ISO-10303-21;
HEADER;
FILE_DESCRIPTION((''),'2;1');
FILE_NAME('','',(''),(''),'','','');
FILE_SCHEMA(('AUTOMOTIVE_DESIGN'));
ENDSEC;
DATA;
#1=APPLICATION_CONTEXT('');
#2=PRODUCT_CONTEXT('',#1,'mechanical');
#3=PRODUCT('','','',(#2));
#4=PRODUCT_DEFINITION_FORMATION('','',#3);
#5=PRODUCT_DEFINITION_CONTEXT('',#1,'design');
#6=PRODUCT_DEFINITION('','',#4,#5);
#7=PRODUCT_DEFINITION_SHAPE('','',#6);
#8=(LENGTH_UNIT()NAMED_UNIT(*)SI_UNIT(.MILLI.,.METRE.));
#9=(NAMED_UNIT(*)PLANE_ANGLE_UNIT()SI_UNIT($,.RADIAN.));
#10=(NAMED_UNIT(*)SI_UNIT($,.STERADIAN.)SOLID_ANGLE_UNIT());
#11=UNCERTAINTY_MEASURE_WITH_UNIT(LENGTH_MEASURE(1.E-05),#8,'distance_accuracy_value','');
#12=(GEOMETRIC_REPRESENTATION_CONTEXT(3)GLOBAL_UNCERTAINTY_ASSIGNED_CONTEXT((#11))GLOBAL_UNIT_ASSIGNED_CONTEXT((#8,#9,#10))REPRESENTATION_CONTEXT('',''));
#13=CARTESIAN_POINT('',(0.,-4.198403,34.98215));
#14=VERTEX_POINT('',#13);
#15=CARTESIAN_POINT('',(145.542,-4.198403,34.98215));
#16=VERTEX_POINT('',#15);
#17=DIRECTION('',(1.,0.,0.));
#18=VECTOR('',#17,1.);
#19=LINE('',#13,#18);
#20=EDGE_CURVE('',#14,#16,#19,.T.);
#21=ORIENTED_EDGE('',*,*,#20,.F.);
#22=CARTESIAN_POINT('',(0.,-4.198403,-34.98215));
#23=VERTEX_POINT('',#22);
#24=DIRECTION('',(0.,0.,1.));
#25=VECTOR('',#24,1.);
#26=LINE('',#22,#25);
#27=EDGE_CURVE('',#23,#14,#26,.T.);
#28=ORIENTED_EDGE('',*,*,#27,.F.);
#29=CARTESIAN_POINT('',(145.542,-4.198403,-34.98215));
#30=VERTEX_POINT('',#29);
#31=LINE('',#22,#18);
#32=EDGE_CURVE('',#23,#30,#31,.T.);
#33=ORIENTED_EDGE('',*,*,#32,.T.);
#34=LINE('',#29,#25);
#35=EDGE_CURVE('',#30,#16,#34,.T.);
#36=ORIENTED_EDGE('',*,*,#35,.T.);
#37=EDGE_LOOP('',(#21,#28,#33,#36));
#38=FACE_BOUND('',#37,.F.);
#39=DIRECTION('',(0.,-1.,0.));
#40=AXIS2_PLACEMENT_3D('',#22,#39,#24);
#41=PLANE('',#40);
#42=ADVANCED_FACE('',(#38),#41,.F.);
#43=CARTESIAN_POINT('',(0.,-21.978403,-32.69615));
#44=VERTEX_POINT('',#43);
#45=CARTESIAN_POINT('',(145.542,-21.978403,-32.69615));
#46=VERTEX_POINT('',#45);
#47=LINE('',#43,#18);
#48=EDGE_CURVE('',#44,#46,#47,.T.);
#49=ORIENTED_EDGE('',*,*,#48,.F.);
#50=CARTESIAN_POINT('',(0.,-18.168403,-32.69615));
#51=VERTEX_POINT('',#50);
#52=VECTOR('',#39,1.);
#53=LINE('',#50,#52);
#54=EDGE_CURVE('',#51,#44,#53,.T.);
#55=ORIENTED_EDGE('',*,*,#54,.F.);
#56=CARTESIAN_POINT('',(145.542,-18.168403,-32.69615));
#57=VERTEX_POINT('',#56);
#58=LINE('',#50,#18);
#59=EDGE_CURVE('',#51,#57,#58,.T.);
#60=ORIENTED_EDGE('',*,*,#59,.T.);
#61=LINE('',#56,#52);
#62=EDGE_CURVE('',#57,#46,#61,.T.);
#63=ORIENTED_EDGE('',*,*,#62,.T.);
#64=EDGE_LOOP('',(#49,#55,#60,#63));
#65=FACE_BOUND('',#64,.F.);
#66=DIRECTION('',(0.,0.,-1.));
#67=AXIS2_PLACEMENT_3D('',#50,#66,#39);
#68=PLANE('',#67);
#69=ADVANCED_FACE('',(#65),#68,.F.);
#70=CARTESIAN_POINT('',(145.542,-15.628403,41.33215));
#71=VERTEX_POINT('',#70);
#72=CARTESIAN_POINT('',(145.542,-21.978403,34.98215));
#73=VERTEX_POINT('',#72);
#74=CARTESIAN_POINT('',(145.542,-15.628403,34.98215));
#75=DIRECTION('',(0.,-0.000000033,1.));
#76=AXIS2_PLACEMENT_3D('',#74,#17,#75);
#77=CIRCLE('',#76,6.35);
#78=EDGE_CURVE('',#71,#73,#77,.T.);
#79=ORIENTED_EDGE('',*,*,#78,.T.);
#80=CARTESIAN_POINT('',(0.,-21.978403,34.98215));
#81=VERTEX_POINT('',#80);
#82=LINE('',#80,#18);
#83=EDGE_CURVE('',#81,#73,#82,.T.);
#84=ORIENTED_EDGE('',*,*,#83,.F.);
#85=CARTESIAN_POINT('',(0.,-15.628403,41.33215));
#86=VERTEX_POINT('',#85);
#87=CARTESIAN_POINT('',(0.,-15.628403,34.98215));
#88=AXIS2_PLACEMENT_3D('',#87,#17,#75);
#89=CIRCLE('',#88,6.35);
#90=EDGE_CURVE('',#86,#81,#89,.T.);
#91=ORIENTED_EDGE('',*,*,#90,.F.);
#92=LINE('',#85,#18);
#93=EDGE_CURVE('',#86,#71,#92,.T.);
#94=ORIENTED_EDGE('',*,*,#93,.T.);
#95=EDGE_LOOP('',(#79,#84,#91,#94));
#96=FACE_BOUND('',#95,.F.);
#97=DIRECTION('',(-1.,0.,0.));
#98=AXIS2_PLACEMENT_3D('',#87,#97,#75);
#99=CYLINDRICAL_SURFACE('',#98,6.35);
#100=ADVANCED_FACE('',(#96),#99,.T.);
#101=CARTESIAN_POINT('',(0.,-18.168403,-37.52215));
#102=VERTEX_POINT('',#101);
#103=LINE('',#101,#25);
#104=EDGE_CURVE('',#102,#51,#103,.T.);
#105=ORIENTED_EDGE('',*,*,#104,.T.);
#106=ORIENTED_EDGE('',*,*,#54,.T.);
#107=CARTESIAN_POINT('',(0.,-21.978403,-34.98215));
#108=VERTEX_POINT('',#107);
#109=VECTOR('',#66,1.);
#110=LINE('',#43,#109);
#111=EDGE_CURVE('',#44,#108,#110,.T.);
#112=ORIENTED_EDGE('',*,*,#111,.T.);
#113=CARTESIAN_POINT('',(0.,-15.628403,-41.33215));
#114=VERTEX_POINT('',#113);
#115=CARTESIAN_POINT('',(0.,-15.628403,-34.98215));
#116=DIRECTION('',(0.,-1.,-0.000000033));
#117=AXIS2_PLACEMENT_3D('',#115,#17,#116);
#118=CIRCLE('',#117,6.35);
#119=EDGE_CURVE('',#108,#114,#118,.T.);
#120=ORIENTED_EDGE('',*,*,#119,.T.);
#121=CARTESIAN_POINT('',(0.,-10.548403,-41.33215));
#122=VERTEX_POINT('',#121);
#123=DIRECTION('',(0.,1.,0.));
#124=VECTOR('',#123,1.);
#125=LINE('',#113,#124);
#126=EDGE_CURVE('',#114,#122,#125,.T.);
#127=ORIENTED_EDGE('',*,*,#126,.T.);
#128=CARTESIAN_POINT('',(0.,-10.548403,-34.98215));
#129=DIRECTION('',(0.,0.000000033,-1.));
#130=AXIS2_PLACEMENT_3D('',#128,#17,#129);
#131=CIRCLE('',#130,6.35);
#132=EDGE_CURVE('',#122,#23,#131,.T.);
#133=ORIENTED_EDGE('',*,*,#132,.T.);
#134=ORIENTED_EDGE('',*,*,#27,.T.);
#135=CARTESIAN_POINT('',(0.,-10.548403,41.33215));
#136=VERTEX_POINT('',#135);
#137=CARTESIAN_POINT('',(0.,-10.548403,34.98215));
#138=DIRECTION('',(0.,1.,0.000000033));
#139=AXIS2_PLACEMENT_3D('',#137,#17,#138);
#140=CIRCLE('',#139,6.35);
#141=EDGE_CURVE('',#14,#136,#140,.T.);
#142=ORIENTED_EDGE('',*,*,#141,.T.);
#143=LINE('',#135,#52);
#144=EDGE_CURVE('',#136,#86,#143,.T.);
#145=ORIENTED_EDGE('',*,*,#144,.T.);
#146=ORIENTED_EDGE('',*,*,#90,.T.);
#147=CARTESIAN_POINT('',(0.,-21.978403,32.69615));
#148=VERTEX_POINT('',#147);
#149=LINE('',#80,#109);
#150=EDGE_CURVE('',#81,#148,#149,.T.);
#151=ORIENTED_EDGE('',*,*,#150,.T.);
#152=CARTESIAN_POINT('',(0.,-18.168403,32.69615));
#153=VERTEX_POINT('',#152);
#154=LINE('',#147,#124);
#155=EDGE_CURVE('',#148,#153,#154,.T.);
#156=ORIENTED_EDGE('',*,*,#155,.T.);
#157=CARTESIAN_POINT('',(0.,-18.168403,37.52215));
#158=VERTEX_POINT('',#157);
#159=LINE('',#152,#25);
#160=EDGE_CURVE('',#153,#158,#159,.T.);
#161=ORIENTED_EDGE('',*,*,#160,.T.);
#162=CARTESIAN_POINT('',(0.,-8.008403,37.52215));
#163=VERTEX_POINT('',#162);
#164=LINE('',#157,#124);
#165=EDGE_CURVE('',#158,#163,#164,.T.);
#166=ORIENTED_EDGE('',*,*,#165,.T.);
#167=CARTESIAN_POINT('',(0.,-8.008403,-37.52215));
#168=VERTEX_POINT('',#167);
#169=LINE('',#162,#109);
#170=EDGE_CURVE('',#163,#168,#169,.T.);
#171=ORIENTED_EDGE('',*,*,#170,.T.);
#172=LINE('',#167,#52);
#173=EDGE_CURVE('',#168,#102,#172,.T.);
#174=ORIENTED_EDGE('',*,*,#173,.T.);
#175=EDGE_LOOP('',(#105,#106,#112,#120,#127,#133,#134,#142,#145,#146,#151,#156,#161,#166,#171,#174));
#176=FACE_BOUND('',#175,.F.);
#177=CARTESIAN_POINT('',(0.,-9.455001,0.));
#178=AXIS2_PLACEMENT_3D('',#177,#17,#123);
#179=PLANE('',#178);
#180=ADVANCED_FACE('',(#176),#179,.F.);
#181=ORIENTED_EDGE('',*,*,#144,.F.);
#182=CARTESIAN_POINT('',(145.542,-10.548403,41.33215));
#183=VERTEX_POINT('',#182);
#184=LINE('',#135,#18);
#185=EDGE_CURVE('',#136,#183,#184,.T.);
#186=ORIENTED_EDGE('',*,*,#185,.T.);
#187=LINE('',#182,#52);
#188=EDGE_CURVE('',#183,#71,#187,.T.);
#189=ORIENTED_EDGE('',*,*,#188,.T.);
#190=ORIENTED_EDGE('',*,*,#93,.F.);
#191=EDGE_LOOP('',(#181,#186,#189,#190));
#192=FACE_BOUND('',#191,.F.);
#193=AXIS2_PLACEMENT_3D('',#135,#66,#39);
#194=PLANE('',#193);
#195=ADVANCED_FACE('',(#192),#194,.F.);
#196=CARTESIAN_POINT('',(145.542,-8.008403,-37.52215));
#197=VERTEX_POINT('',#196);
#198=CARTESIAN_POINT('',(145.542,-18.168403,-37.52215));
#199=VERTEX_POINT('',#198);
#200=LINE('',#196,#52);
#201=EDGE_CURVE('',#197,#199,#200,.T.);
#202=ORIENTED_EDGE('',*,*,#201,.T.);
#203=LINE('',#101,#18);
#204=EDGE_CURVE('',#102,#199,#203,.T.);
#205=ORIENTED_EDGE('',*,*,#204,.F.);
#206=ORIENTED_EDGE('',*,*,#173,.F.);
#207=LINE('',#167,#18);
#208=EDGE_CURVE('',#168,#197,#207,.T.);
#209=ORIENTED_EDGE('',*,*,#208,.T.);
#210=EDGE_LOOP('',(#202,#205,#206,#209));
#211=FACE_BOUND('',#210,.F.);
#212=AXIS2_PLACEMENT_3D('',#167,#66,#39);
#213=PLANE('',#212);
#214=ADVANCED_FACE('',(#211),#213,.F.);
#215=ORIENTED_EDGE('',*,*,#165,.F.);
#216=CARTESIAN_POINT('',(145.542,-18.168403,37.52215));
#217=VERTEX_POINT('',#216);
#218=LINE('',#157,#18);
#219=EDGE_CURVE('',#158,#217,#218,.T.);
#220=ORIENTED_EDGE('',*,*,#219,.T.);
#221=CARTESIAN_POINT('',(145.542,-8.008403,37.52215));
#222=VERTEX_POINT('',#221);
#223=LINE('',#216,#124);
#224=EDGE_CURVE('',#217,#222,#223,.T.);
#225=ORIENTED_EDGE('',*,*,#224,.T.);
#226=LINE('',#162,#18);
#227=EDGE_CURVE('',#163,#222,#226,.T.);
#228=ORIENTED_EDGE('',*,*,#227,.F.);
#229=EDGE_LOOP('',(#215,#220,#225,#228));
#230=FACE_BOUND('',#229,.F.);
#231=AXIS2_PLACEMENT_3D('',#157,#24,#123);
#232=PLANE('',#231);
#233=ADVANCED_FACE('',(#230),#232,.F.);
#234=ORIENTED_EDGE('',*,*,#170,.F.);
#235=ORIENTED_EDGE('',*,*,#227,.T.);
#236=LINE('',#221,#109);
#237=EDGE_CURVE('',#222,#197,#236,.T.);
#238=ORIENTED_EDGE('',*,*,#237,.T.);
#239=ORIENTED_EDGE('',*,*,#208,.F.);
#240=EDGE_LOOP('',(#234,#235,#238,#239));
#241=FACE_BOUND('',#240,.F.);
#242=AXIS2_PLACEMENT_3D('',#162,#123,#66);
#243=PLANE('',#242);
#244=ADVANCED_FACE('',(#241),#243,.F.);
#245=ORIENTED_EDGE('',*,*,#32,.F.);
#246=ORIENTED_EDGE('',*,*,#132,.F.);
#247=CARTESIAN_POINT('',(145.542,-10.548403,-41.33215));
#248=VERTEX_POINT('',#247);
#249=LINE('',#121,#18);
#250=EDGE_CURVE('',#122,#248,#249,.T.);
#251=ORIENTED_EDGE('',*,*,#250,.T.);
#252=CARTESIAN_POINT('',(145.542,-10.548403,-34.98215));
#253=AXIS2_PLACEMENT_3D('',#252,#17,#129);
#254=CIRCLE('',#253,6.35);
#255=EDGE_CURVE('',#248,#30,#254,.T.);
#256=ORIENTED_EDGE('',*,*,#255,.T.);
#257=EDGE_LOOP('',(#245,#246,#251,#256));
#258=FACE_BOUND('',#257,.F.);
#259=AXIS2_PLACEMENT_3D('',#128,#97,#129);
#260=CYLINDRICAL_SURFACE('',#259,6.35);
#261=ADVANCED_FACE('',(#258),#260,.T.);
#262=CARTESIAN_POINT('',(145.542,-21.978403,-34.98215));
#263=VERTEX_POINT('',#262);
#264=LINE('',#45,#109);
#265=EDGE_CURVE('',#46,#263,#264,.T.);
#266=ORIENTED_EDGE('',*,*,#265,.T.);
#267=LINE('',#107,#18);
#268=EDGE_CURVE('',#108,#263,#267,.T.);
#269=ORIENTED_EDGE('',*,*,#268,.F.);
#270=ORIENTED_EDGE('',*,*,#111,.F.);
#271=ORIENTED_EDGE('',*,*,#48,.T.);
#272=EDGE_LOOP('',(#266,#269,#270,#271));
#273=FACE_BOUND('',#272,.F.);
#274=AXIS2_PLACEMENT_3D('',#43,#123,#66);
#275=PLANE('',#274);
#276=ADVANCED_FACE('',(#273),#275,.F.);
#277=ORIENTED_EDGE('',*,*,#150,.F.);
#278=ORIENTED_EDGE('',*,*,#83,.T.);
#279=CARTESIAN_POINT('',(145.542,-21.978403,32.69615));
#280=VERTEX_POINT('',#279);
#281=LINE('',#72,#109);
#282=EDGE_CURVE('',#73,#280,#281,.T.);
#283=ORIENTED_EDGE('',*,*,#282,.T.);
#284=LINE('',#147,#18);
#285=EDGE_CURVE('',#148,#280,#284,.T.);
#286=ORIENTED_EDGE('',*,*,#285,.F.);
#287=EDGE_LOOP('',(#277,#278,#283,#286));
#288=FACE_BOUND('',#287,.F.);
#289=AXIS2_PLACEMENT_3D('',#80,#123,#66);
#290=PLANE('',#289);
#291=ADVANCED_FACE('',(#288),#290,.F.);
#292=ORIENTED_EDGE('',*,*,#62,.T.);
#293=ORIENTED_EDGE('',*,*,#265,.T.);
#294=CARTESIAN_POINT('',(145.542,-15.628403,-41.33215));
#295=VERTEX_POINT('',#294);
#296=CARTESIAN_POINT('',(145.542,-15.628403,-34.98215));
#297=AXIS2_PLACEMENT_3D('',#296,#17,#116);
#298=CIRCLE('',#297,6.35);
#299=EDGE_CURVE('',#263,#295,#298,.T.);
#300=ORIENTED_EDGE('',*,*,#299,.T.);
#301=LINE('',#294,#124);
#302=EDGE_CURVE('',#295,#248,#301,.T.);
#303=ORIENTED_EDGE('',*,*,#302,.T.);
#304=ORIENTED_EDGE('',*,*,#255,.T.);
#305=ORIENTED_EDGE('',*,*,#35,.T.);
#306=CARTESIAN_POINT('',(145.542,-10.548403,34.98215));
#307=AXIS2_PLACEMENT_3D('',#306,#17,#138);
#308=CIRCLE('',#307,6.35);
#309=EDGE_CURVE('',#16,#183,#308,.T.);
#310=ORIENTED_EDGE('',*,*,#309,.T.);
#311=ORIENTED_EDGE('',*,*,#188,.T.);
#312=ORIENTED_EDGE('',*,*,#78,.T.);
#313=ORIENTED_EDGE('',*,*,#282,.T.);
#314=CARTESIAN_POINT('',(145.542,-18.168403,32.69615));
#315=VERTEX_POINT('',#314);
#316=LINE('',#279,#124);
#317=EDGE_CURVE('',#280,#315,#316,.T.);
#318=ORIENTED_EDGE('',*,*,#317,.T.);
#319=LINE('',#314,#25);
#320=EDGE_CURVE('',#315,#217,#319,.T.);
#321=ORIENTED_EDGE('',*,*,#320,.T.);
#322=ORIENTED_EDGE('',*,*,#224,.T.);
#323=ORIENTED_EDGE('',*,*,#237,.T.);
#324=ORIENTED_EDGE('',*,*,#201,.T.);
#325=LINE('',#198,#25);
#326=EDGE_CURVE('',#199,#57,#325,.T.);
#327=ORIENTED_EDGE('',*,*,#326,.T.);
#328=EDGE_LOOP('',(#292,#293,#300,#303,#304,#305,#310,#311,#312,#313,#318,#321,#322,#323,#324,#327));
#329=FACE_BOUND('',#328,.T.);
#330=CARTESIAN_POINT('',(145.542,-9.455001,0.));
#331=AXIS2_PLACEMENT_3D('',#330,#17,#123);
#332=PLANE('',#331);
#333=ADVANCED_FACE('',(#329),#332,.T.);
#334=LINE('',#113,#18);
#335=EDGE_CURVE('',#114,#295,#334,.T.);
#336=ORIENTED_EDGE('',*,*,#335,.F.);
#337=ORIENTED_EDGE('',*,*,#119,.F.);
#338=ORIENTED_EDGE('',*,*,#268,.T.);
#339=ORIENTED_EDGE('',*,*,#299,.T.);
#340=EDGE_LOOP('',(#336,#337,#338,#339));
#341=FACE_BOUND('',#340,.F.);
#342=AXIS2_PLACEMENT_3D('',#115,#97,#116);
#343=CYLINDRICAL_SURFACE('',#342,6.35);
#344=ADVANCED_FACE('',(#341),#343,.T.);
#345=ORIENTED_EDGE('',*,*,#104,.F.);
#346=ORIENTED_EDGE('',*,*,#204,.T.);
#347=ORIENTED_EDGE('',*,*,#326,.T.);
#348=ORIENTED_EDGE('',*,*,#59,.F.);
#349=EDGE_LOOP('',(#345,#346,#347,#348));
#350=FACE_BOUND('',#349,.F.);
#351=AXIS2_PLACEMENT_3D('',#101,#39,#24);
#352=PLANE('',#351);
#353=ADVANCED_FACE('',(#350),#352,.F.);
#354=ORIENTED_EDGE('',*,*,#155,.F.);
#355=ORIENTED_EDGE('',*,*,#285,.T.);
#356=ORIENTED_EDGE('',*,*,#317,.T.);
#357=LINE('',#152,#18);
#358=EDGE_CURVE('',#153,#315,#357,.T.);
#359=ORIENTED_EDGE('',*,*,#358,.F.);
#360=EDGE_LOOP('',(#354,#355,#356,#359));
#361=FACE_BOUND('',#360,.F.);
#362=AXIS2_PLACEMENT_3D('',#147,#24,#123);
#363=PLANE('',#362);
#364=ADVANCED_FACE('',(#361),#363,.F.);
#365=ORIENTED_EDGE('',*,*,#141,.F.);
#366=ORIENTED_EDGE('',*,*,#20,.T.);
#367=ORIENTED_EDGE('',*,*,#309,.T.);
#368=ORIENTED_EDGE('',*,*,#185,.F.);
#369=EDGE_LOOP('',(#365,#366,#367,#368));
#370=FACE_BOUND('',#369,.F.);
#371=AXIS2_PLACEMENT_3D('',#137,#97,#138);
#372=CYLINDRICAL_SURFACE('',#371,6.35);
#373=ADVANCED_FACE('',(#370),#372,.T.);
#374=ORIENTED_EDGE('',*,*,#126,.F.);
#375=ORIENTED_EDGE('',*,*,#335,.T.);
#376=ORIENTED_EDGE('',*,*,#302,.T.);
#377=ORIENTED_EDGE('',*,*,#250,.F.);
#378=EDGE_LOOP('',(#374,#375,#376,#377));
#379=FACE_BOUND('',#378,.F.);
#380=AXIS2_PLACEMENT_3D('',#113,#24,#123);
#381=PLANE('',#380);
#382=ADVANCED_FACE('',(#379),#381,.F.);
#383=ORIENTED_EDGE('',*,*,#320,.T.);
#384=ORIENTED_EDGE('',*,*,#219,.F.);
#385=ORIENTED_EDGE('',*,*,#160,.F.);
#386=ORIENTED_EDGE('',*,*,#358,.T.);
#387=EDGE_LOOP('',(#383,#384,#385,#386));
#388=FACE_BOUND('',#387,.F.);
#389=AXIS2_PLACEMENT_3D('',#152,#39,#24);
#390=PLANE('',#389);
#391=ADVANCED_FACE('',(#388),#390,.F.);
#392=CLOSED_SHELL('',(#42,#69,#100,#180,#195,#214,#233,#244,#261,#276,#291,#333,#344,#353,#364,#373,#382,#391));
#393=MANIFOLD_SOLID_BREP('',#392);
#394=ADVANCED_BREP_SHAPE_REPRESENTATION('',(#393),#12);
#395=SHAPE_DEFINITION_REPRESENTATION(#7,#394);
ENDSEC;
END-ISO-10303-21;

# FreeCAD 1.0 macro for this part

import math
import FreeCAD as App
import Part
import Sketcher
from FreeCAD import Vector
Q = App.Units.Quantity

doc = App.newDocument("Part")
body = doc.addObject("PartDesign::Body", "Body")

# Sketch on YZ plane
sketch1 = body.newObject("Sketcher::SketchObject", "Sketch")
sketch1.AttachmentSupport = (doc.getObject("YZ_Plane"), [""])
sketch1.MapMode = "FlatFace"
sketch1.addGeometry([
    Part.LineSegment(Vector(-8.008403, 37.52215, 0), Vector(-8.008403, -37.52215, 0)),  # 0
    Part.LineSegment(Vector(-8.008403, -37.52215, 0), Vector(-18.168403, -37.52215, 0)),  # 1
    Part.LineSegment(Vector(-18.168403, -37.52215, 0), Vector(-18.168403, -32.69615, 0)),  # 2
    Part.LineSegment(Vector(-18.168403, -32.69615, 0), Vector(-21.978403, -32.69615, 0)),  # 3
    Part.LineSegment(Vector(-21.978403, -32.69615, 0), Vector(-21.978403, -34.98215, 0)),  # 4
    Part.ArcOfCircle(Part.Circle(Vector(-15.628403, -34.98215, 0), Vector(0, 0, 1), 6.35), math.radians(-179.999998), math.radians(-90.000002)),  # 5
    Part.LineSegment(Vector(-15.628403, -41.33215, 0), Vector(-10.548403, -41.33215, 0)),  # 6
    Part.ArcOfCircle(Part.Circle(Vector(-10.548403, -34.98215, 0), Vector(0, 0, 1), 6.35), math.radians(-89.999998), math.radians(-0.000002)),  # 7
    Part.LineSegment(Vector(-4.198403, -34.98215, 0), Vector(-4.198403, 34.98215, 0)),  # 8
    Part.ArcOfCircle(Part.Circle(Vector(-10.548403, 34.98215, 0), Vector(0, 0, 1), 6.35), math.radians(0.000002), math.radians(89.999998)),  # 9
    Part.LineSegment(Vector(-10.548403, 41.33215, 0), Vector(-15.628403, 41.33215, 0)),  # 10
    Part.ArcOfCircle(Part.Circle(Vector(-15.628403, 34.98215, 0), Vector(0, 0, 1), 6.35), math.radians(90.000002), math.radians(179.999998)),  # 11
    Part.LineSegment(Vector(-21.978403, 34.98215, 0), Vector(-21.978403, 32.69615, 0)),  # 12
    Part.LineSegment(Vector(-21.978403, 32.69615, 0), Vector(-18.168403, 32.69615, 0)),  # 13
    Part.LineSegment(Vector(-18.168403, 32.69615, 0), Vector(-18.168403, 37.52215, 0)),  # 14
    Part.LineSegment(Vector(-18.168403, 37.52215, 0), Vector(-8.008403, 37.52215, 0)),  # 15
], False)
sketch1.addConstraint([
    Sketcher.Constraint("Coincident", 0, 2, 1, 1),
    Sketcher.Constraint("Coincident", 1, 2, 2, 1),
    Sketcher.Constraint("Coincident", 2, 2, 3, 1),
    Sketcher.Constraint("Coincident", 3, 2, 4, 1),
    Sketcher.Constraint("Tangent", 4, 2, 5, 1),
    Sketcher.Constraint("Tangent", 5, 2, 6, 1),
    Sketcher.Constraint("Tangent", 6, 2, 7, 1),
    Sketcher.Constraint("Tangent", 7, 2, 8, 1),
    Sketcher.Constraint("Tangent", 8, 2, 9, 1),
    Sketcher.Constraint("Tangent", 9, 2, 10, 1),
    Sketcher.Constraint("Tangent", 10, 2, 11, 1),
    Sketcher.Constraint("Tangent", 11, 2, 12, 1),
    Sketcher.Constraint("Coincident", 12, 2, 13, 1),
    Sketcher.Constraint("Coincident", 13, 2, 14, 1),
    Sketcher.Constraint("Coincident", 14, 2, 15, 1),
    Sketcher.Constraint("Coincident", 15, 2, 0, 1),
    Sketcher.Constraint("Vertical", 0),
    Sketcher.Constraint("Horizontal", 1),
    Sketcher.Constraint("Vertical", 2),
    Sketcher.Constraint("Horizontal", 3),
    Sketcher.Constraint("Vertical", 4),
    Sketcher.Constraint("Horizontal", 6),
    Sketcher.Constraint("Vertical", 8),
    Sketcher.Constraint("Horizontal", 10),
    Sketcher.Constraint("Vertical", 12),
    Sketcher.Constraint("Horizontal", 13),
    Sketcher.Constraint("Vertical", 14),
    Sketcher.Constraint("Horizontal", 15),
    Sketcher.Constraint("Equal", 5, 7),
    Sketcher.Constraint("Equal", 7, 9),
    Sketcher.Constraint("Equal", 9, 11),
    Sketcher.Constraint("Symmetric", 5, 3, 11, 3, -1),
    Sketcher.Constraint("Symmetric", 2, 2, 13, 2, -1),
    Sketcher.Constraint("Equal", 2, 14),
    Sketcher.Constraint("Radius", 5, Q("0.25 in")),
    Sketcher.Constraint("DistanceX", 1, 2, 1, 1, Q("0.4 in")),
    Sketcher.Constraint("DistanceX", 6, 1, 6, 2, Q("0.2 in")),
    Sketcher.Constraint("DistanceX", 3, 2, 3, 1, Q("0.15 in")),
    Sketcher.Constraint("DistanceY", 2, 1, 2, 2, Q("0.19 in")),
    Sketcher.Constraint("DistanceY", 4, 2, 4, 1, Q("0.09 in")),
    Sketcher.Constraint("DistanceY", 0, 2, 0, 1, Q("2.9545 in")),
    Sketcher.Constraint("DistanceX", 5, 3, -1, 1, Q("15.628403 mm")),
])
pad1 = body.newObject("PartDesign::Pad", "Pad")
pad1.Profile = sketch1
pad1.Length = Q("5.73 in")

doc.recompute()
